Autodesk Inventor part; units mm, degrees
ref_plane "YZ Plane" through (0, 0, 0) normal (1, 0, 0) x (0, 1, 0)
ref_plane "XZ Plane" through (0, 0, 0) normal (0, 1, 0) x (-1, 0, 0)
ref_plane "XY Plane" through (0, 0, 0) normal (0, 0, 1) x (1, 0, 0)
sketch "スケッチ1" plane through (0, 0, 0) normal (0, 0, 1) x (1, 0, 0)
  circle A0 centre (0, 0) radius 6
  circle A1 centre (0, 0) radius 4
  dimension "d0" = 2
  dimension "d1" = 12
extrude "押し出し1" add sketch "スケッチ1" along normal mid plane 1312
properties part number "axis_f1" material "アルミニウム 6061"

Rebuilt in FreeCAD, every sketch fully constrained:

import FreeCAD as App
import Part
import Sketcher
from FreeCAD import Vector

doc = App.newDocument("Part")
body = doc.addObject("PartDesign::Body", "Body")

# Sketch on XY plane
sketch1 = doc.addObject("Sketcher::SketchObject", "Sketch")
body.addObject(sketch1)
sketch1.AttachmentSupport = (doc.XY_Plane, [""])
sketch1.MapMode = "FlatFace"
sketch1.addGeometry([
    Part.Circle(Vector(0, 0, 0), Vector(0, 0, 1), 6),
    Part.Circle(Vector(0, 0, 0), Vector(0, 0, 1), 4),
], False)
sketch1.addConstraint([
    Sketcher.Constraint("Coincident", 0, 3, -1, 1),
    Sketcher.Constraint("Coincident", 1, 3, -1, 1),
    Sketcher.Constraint("Diameter", 0, 12.0),
    Sketcher.Constraint("Diameter", 1, 8.0),
])
pad1 = doc.addObject("PartDesign::Pad", "Pad")
body.addObject(pad1)
pad1.Profile = sketch1
pad1.Length = 1312
pad1.Midplane = True

doc.recompute()
